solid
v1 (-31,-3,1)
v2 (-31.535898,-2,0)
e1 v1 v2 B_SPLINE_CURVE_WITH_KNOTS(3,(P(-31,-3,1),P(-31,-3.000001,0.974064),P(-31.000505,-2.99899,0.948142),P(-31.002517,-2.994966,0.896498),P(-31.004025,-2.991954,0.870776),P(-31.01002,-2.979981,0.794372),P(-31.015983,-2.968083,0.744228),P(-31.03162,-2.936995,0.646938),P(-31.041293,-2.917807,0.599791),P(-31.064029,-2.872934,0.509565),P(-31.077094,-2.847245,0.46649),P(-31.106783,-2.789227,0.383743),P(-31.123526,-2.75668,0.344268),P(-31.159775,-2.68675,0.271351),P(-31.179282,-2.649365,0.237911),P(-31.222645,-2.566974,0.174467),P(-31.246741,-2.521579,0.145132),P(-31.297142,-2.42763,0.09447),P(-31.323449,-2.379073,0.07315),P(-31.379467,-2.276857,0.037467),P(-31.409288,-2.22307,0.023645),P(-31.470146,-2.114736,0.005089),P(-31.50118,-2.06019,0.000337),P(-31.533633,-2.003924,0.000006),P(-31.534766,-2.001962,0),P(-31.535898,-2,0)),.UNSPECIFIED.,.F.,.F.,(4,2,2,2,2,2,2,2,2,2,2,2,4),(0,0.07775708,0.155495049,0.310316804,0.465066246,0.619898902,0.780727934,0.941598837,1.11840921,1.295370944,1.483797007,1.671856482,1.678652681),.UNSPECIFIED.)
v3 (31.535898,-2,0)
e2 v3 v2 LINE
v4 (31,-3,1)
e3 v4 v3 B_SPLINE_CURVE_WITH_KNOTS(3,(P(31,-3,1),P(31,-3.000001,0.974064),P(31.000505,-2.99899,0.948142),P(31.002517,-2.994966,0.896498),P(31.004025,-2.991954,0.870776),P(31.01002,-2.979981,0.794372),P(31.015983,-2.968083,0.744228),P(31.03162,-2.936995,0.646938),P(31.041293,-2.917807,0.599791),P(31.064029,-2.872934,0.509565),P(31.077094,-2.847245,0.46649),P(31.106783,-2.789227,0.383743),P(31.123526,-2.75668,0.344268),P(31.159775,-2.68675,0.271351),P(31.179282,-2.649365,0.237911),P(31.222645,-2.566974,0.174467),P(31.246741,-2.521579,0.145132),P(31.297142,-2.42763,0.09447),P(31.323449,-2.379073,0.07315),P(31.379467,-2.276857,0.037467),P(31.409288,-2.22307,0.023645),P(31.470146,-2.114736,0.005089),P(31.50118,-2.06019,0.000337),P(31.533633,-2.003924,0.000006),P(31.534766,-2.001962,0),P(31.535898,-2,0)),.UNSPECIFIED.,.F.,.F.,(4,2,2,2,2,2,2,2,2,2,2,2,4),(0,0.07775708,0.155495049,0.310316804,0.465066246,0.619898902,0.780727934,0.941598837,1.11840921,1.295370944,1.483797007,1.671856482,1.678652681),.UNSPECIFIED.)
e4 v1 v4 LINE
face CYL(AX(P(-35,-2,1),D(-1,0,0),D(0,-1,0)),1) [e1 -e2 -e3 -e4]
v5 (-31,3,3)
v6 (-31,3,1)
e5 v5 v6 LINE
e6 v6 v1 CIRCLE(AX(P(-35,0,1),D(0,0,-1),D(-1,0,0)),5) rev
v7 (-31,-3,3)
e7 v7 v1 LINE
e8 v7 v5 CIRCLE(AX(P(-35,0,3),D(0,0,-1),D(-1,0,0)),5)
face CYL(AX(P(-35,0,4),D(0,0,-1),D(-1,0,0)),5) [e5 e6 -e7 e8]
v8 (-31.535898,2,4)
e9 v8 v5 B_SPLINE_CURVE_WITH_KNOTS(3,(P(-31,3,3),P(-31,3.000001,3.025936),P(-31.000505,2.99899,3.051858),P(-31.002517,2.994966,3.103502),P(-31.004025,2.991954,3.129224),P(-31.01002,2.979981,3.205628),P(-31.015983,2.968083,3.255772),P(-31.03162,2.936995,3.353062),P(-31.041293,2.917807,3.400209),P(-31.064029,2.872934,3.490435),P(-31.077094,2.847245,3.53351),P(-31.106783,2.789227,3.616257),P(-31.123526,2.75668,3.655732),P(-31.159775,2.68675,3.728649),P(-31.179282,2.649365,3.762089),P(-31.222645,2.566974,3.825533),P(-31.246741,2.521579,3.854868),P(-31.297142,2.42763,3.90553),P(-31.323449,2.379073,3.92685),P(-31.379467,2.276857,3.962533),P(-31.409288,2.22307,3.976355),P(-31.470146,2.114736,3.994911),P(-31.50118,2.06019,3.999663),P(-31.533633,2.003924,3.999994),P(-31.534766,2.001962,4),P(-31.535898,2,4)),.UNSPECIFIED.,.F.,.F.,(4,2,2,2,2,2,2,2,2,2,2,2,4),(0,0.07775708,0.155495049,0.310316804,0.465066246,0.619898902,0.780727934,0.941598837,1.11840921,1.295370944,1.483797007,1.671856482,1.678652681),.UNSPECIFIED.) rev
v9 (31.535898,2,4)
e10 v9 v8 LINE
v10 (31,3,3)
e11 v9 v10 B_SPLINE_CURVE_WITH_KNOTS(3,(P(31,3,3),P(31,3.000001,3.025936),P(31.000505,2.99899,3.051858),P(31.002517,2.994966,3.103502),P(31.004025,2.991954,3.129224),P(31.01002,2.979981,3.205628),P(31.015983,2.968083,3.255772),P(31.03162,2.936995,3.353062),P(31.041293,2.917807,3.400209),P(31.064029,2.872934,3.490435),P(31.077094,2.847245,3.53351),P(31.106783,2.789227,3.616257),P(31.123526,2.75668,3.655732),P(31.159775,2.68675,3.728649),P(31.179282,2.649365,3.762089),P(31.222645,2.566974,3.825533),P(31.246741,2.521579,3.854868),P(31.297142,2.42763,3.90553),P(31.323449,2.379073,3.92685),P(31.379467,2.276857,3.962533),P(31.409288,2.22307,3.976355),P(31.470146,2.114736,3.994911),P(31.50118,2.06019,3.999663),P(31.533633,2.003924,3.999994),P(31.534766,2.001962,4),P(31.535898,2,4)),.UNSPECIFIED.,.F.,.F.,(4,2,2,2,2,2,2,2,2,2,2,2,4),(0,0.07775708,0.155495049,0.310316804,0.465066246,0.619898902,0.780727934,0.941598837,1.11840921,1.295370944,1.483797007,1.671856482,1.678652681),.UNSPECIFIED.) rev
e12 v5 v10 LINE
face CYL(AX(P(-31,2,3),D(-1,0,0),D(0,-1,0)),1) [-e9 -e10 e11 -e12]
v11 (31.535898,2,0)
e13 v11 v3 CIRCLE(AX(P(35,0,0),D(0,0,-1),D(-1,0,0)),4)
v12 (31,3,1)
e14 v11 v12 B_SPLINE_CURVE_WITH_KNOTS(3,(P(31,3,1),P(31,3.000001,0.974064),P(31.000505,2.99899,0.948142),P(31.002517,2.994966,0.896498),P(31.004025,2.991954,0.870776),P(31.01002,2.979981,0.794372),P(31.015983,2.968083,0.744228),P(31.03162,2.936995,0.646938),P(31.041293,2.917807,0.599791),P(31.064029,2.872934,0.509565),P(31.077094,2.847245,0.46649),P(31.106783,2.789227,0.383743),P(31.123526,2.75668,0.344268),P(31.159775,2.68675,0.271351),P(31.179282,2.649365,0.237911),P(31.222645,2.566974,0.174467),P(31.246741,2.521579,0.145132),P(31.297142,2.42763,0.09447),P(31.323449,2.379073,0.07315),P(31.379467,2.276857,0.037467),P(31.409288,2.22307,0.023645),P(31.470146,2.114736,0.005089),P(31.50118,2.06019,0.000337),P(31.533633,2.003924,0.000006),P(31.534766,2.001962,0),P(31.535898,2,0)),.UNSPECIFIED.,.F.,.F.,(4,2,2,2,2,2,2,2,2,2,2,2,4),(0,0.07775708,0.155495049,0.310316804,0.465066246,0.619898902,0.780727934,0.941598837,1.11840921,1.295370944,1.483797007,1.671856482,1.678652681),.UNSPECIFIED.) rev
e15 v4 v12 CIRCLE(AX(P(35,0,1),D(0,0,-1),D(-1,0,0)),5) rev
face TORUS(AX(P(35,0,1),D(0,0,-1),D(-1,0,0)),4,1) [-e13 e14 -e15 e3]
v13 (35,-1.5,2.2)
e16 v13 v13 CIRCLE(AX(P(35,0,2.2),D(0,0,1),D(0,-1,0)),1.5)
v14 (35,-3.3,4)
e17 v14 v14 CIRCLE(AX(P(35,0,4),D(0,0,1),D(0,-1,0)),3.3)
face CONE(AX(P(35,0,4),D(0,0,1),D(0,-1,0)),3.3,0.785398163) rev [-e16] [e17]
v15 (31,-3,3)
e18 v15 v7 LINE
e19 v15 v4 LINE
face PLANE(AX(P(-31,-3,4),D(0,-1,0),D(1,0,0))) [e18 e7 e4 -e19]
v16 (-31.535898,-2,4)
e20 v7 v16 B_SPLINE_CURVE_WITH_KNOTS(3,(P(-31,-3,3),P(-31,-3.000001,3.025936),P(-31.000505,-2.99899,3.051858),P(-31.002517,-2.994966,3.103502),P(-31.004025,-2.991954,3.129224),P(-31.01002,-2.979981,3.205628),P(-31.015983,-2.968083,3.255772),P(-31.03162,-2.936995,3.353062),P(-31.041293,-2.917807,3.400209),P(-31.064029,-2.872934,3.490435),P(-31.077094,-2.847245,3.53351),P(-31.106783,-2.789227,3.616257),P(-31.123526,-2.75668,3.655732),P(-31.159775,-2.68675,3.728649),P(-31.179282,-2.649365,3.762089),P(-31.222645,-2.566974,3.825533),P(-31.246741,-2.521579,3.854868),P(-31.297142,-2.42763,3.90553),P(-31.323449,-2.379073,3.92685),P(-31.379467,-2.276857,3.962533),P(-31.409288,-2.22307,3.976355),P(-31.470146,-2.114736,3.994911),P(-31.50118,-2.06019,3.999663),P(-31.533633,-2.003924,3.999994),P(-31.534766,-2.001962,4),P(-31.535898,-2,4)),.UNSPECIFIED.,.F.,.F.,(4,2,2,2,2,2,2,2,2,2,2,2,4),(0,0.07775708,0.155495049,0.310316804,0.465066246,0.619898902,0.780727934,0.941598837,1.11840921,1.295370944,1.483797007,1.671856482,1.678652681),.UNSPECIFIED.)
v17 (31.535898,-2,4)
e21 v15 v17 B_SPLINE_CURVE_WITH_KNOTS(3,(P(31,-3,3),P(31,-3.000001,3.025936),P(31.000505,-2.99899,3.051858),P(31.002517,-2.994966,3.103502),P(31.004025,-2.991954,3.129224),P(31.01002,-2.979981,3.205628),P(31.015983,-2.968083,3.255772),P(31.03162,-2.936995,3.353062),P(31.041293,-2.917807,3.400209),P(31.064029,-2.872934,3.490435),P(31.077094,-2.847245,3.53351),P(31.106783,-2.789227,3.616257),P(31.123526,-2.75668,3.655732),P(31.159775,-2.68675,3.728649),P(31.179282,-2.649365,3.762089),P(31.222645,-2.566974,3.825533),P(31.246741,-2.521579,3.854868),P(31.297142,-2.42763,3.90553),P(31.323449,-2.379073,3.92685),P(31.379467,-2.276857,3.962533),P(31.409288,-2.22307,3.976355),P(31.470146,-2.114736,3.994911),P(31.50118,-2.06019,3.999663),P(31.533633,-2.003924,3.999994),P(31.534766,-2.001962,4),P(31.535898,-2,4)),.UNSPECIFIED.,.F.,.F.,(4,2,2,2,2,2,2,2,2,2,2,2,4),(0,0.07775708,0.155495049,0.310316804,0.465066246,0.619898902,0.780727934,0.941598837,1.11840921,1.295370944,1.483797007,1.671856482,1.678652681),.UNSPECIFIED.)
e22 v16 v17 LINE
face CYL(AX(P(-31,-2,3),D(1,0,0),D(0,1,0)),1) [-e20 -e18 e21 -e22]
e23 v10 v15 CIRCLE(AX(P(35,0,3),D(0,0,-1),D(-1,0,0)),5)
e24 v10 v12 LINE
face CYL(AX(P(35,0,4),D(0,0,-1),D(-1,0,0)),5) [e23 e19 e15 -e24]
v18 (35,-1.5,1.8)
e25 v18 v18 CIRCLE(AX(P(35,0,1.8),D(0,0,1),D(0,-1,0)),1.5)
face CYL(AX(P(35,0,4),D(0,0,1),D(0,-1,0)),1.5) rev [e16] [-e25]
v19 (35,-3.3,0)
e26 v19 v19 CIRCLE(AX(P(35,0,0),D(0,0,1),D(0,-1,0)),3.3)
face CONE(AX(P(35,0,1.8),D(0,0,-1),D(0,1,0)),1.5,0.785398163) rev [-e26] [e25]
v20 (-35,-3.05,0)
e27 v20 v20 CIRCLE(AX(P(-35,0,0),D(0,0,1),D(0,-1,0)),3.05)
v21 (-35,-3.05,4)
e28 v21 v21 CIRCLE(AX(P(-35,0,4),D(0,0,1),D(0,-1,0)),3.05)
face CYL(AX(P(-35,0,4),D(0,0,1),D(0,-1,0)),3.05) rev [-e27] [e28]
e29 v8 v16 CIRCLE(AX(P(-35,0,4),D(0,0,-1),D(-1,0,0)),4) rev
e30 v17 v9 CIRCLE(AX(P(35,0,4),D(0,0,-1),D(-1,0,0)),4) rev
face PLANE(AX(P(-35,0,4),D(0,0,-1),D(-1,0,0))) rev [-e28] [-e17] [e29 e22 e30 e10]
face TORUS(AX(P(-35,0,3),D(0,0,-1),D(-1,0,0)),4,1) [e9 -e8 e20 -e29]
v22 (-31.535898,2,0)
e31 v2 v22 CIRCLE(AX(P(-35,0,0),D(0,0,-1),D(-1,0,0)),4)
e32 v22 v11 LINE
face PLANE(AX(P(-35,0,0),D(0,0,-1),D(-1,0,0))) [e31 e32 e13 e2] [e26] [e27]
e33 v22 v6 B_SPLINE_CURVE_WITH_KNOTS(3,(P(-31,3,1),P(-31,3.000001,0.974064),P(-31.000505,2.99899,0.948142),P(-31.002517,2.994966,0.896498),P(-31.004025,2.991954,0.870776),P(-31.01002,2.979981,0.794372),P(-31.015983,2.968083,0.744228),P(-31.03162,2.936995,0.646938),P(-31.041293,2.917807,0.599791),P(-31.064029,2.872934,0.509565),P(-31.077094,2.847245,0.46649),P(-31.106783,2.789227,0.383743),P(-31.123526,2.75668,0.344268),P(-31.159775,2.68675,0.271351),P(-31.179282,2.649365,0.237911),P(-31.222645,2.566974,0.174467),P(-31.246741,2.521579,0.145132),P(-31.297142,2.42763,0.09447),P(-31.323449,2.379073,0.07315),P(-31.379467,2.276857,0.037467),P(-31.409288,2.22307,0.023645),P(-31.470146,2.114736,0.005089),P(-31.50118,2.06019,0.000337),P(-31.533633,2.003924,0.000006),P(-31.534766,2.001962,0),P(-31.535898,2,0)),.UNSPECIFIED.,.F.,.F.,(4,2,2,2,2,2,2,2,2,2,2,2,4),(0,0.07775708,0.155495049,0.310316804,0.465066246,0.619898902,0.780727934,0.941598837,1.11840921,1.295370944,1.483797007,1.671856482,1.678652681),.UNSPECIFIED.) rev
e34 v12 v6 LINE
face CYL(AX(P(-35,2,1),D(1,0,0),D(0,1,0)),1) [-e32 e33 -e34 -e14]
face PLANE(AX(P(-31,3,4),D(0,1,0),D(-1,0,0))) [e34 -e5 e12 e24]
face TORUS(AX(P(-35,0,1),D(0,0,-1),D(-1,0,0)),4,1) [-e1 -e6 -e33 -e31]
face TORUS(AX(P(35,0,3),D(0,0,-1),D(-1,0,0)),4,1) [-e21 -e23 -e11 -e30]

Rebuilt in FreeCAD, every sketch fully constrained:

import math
import FreeCAD as App
import Part
import Sketcher


def edges_at(feature, points):
    """Names of the edges that pass closest to the given points."""
    edges = feature.Shape.Edges
    near = lambda p: min(range(len(edges)), key=lambda i: edges[i].distToShape(Part.Vertex(*p))[0])
    return sorted({f"Edge{near(p) + 1}" for p in points})

doc = App.newDocument("Part")
body = doc.addObject("PartDesign::Body", "Body")

# Sketch on XY plane
sketch1 = body.newObject("Sketcher::SketchObject", "Sketch")
sketch1.AttachmentSupport = (doc.getObject("XY_Plane"), [""])
sketch1.MapMode = "FlatFace"
sketch1.addGeometry(Part.LineSegment(App.Vector(-31, 3, 0), App.Vector(31, 3, 0)), False)
sketch1.addGeometry(Part.ArcOfCircle(Part.Circle(App.Vector(35, 0, 0), App.Vector(0, 0, 1), 5), math.radians(-143), math.radians(143)), False)
sketch1.addGeometry(Part.LineSegment(App.Vector(31, -3, 0), App.Vector(-31, -3, 0)), False)
sketch1.addGeometry(Part.ArcOfCircle(Part.Circle(App.Vector(-35, 0, 0), App.Vector(0, 0, 1), 5), math.radians(37), math.radians(323)), False)
sketch1.addConstraint(Sketcher.Constraint("Coincident", 0, 2, 1, 2))
sketch1.addConstraint(Sketcher.Constraint("Coincident", 1, 1, 2, 1))
sketch1.addConstraint(Sketcher.Constraint("Coincident", 2, 2, 3, 2))
sketch1.addConstraint(Sketcher.Constraint("Coincident", 3, 1, 0, 1))
sketch1.addConstraint(Sketcher.Constraint("Horizontal", 0))
sketch1.addConstraint(Sketcher.Constraint("Horizontal", 2))
sketch1.addConstraint(Sketcher.Constraint("Equal", 1, 3))
sketch1.addConstraint(Sketcher.Constraint("Symmetric", 1, 3, 3, 3, -1, 1))
sketch1.addConstraint(Sketcher.Constraint("Symmetric", 0, 2, 1, 1, -1))
sketch1.addConstraint(Sketcher.Constraint("Radius", 1, 5.0))
sketch1.addConstraint(Sketcher.Constraint("DistanceX", 0, 1, 0, 2, 62.0))
sketch1.addConstraint(Sketcher.Constraint("DistanceX", -1, 1, 1, 3, 35.0))
pad1 = body.newObject("PartDesign::Pad", "Pad")
pad1.Profile = sketch1
pad1.Length = 4

# Sketch on XY plane
sketch2 = body.newObject("Sketcher::SketchObject", "Sketch001")
sketch2.AttachmentSupport = (doc.getObject("XY_Plane"), [""])
sketch2.MapMode = "FlatFace"
sketch2.AttachmentOffset = App.Placement(App.Vector(0, 0, 4), App.Rotation())
sketch2.addGeometry(Part.Circle(App.Vector(-35, 0, 0), App.Vector(0, 0, 1), 3), False)
sketch2.addConstraint(Sketcher.Constraint("PointOnObject", 0, 3, -1))
sketch2.addConstraint(Sketcher.Constraint("Diameter", 0, 6.1))
sketch2.addConstraint(Sketcher.Constraint("DistanceX", 0, 3, -1, 1, 35.0))
doc.recompute()
hole = body.newObject("PartDesign::Hole", "Hole")
hole.Profile = sketch2
hole.ThreadType = "None"
hole.Diameter = 6.1
hole.DepthType = "ThroughAll"

# Sketch on YZ plane
sketch3 = body.newObject("Sketcher::SketchObject", "Sketch002")
sketch3.AttachmentSupport = (doc.getObject("YZ_Plane"), [""])
sketch3.MapMode = "FlatFace"
sketch3.AttachmentOffset = App.Placement(App.Vector(0, 0, 35), App.Rotation())
sketch3.addGeometry(Part.LineSegment(App.Vector(0, 0, 0), App.Vector(0, 4, 0)), False)
sketch3.addGeometry(Part.LineSegment(App.Vector(0, 4, 0), App.Vector(-3.3, 4, 0)), False)
sketch3.addGeometry(Part.LineSegment(App.Vector(-3.3, 4, 0), App.Vector(-1.5, 2.2, 0)), False)
sketch3.addGeometry(Part.LineSegment(App.Vector(-1.5, 2.2, 0), App.Vector(-1.5, 1.8, 0)), False)
sketch3.addGeometry(Part.LineSegment(App.Vector(-1.5, 1.8, 0), App.Vector(-3.3, 0, 0)), False)
sketch3.addGeometry(Part.LineSegment(App.Vector(-3.3, 0, 0), App.Vector(0, 0, 0)), False)
sketch3.addConstraint(Sketcher.Constraint("Coincident", 0, 2, 1, 1))
sketch3.addConstraint(Sketcher.Constraint("Coincident", 1, 2, 2, 1))
sketch3.addConstraint(Sketcher.Constraint("Coincident", 2, 2, 3, 1))
sketch3.addConstraint(Sketcher.Constraint("Coincident", 3, 2, 4, 1))
sketch3.addConstraint(Sketcher.Constraint("Coincident", 4, 2, 5, 1))
sketch3.addConstraint(Sketcher.Constraint("Coincident", 5, 2, 0, 1))
sketch3.addConstraint(Sketcher.Constraint("Vertical", 0))
sketch3.addConstraint(Sketcher.Constraint("Horizontal", 1))
sketch3.addConstraint(Sketcher.Constraint("Vertical", 3))
sketch3.addConstraint(Sketcher.Constraint("Horizontal", 5))
sketch3.addConstraint(Sketcher.Constraint("Coincident", 5, 2, -1, 1))
sketch3.addConstraint(Sketcher.Constraint("Perpendicular", 2, 4))
sketch3.addConstraint(Sketcher.Constraint("Vertical", 1, 2, 4, 2))
sketch3.addConstraint(Sketcher.Constraint("Equal", 2, 4))
sketch3.addConstraint(Sketcher.Constraint("DistanceY", 0, 1, 0, 2, 4.0))
sketch3.addConstraint(Sketcher.Constraint("DistanceX", 1, 2, 1, 1, 3.3))
sketch3.addConstraint(Sketcher.Constraint("DistanceY", 3, 2, 3, 1, 0.4))
groove = body.newObject("PartDesign::Groove", "Groove")
groove.Profile = sketch3
groove.ReferenceAxis = (sketch3, ["V_Axis"])
groove.Angle = 360
doc.recompute()

fillet = body.newObject("PartDesign::Fillet", "Fillet")
fillet.Base = (groove, edges_at(groove, [
    (40, 0, 4),
    (0, -3, 4),
    (-40, 0, 4),
    (0, -3, 0),
    (40, 0, 0),
    (0, 3, 0),
    (-40, 0, 0),
    (0, 3, 4),
]))
fillet.Radius = 1

doc.recompute()
